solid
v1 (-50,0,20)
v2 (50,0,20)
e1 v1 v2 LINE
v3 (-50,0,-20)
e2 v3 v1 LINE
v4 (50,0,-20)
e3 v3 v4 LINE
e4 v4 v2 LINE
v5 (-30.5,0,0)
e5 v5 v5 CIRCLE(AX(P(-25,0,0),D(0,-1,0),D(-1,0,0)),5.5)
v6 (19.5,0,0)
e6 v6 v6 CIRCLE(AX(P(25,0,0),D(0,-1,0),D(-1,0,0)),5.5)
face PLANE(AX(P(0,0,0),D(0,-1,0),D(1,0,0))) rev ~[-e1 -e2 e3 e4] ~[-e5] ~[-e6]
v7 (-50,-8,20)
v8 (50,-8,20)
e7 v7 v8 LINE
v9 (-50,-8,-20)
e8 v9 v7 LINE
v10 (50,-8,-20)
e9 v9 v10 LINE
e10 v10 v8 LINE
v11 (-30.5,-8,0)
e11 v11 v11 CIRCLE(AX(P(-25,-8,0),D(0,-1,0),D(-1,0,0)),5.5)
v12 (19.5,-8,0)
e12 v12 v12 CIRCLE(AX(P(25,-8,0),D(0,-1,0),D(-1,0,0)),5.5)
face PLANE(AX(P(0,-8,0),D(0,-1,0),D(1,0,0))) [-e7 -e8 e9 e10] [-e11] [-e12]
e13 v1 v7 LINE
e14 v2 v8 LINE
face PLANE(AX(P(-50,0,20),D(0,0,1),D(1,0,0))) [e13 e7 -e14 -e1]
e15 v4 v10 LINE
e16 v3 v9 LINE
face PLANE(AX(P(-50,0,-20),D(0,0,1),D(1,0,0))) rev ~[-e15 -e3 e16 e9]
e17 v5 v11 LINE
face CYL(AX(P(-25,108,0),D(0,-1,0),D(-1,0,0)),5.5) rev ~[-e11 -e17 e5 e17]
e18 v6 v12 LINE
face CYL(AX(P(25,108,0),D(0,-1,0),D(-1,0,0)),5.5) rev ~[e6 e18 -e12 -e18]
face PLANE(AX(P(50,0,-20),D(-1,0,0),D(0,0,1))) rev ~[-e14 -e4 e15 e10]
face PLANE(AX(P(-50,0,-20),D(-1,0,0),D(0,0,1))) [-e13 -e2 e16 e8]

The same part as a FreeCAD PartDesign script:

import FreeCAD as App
import Part
import Sketcher
from FreeCAD import Vector


def add_polygon(sketch, points):
    """Adds a closed chain of lines whose ends are joined by coincident constraints."""
    first, n = sketch.GeometryCount, len(points)
    for a, b in zip(points, points[1:] + points[:1]):
        sketch.addGeometry(Part.LineSegment(App.Vector(*a, 0), App.Vector(*b, 0)), False)
    for i in range(n):
        sketch.addConstraint(Sketcher.Constraint("Coincident", first + i, 2, first + (i + 1) % n, 1))

doc = App.newDocument("Part")
body = doc.addObject("PartDesign::Body", "Body")

# Sketch on XZ plane
sketch1 = doc.addObject("Sketcher::SketchObject", "Sketch")
body.addObject(sketch1)
sketch1.AttachmentSupport = (doc.XZ_Plane, [""])
sketch1.MapMode = "FlatFace"
add_polygon(sketch1, [(-50, 20), (-50, -20), (50, -20), (50, 20)])  # lines 0-3
sketch1.addConstraint(Sketcher.Constraint("Vertical", 0))
sketch1.addConstraint(Sketcher.Constraint("Horizontal", 1))
sketch1.addConstraint(Sketcher.Constraint("Vertical", 2))
sketch1.addConstraint(Sketcher.Constraint("Horizontal", 3))
sketch1.addConstraint(Sketcher.Constraint("Symmetric", 0, 2, 2, 2, -1, 1))
sketch1.addConstraint(Sketcher.Constraint("DistanceX", 1, 1, 1, 2, 100.0))
sketch1.addConstraint(Sketcher.Constraint("DistanceY", 0, 2, 0, 1, 40.0))
pad1 = doc.addObject("PartDesign::Pad", "Pad")
body.addObject(pad1)
pad1.Profile = sketch1
pad1.Length = 8

# Sketch on XZ plane
sketch2 = doc.addObject("Sketcher::SketchObject", "Sketch001")
body.addObject(sketch2)
sketch2.AttachmentSupport = (doc.XZ_Plane, [""])
sketch2.MapMode = "FlatFace"
sketch2.addGeometry(Part.Circle(Vector(-25, 0, 0), Vector(0, 0, 1), 6), False)
sketch2.addGeometry(Part.Circle(Vector(25, 0, 0), Vector(0, 0, 1), 6), False)
sketch2.addConstraint(Sketcher.Constraint("Equal", 0, 1))
sketch2.addConstraint(Sketcher.Constraint("Symmetric", 0, 3, 1, 3, -1, 1))
sketch2.addConstraint(Sketcher.Constraint("PointOnObject", 0, 3, -1))
sketch2.addConstraint(Sketcher.Constraint("Diameter", 0, 11.0))
sketch2.addConstraint(Sketcher.Constraint("DistanceX", 0, 3, -1, 1, 25.0))
doc.recompute()
hole = doc.addObject("PartDesign::Hole", "Hole")
body.addObject(hole)
hole.Profile = sketch2
hole.ThreadType = "None"
hole.Diameter = 11
hole.DepthType = "ThroughAll"
hole.Reversed = True

doc.recompute()
